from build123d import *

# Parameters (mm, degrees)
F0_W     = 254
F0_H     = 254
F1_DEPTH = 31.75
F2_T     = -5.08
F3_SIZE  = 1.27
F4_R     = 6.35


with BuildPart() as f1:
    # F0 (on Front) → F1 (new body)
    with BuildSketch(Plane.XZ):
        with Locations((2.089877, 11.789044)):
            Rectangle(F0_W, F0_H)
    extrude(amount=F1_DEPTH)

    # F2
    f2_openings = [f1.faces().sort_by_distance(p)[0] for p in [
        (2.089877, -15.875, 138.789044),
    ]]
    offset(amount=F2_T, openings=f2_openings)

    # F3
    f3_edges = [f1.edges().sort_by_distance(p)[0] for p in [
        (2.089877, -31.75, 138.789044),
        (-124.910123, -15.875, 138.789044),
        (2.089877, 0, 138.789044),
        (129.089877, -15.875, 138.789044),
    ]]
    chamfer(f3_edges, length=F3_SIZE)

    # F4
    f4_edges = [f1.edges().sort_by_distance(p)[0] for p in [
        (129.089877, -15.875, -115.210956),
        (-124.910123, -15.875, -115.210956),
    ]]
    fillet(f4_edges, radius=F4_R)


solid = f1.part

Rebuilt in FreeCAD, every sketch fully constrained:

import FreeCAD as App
import Part
import Sketcher
from FreeCAD import Vector
Q = App.Units.Quantity


def edges_at(feature, points):
    """Names of the edges that pass closest to the given points."""
    edges = feature.Shape.Edges
    near = lambda p: min(range(len(edges)), key=lambda i: edges[i].distToShape(Part.Vertex(*p))[0])
    return sorted({f"Edge{near(p) + 1}" for p in points})


def faces_at(feature, points):
    """Names of the faces that lie closest to the given points."""
    faces = feature.Shape.Faces
    near = lambda p: min(range(len(faces)), key=lambda i: faces[i].distToShape(Part.Vertex(*p))[0])
    return sorted({f"Face{near(p) + 1}" for p in points})


def add_polygon(sketch, points):
    """Adds a closed chain of lines whose ends are joined by coincident constraints."""
    first, n = sketch.GeometryCount, len(points)
    for a, b in zip(points, points[1:] + points[:1]):
        sketch.addGeometry(Part.LineSegment(App.Vector(*a, 0), App.Vector(*b, 0)), False)
    for i in range(n):
        sketch.addConstraint(Sketcher.Constraint("Coincident", first + i, 2, first + (i + 1) % n, 1))

doc = App.newDocument("Part")
params = doc.addObject("Spreadsheet::Sheet", "Params")
for row, (alias, value) in enumerate([
    ("sketch1_width", "10 in"),
    ("pad1_length", "1.25 in"),
    ("thickness_wall", "0.2 in"),
    ("chamfer_size", "0.05 in"),
    ("fillet_radius", "0.25 in"),
], start=1):
    params.set(f"A{row}", alias)
    params.set(f"B{row}", "=" + value)
    params.setAlias(f"B{row}", alias)

body = doc.addObject("PartDesign::Body", "Body")

sketch1 = body.newObject("Sketcher::SketchObject", "Sketch")
sketch1.AttachmentSupport = (doc.getObject("XZ_Plane"), [""])
sketch1.MapMode = "FlatFace"
add_polygon(sketch1, [(-125, 139), (-125, -115), (129, -115), (129, 139)])
sketch1.addConstraint([
    Sketcher.Constraint("Vertical", 0),
    Sketcher.Constraint("Horizontal", 1),
    Sketcher.Constraint("Vertical", 2),
    Sketcher.Constraint("Horizontal", 3),
    Sketcher.Constraint("Equal", 3, 0),
    Sketcher.Constraint("DistanceX", 1, 1, 1, 2, Q("10 in")),
    Sketcher.Constraint("DistanceX", 0, 2, -1, 1, Q("124.910123 mm")),
    Sketcher.Constraint("DistanceY", 0, 2, -1, 1, Q("115.210956 mm")),
])
sketch1.setExpression("Constraints[9]", "Params.sketch1_width")
pad1 = body.newObject("PartDesign::Pad", "Pad")
pad1.Profile = sketch1
pad1.setExpression("Length", "Params.pad1_length")
doc.recompute()

thickness = body.newObject("PartDesign::Thickness", "Thickness")
thickness.Base = (pad1, faces_at(pad1, [(2.09, -15.875, 138.789)]))
thickness.setExpression("Value", "Params.thickness_wall")
thickness.Reversed = True
thickness.Join = "Arc"
doc.recompute()

chamfer = body.newObject("PartDesign::Chamfer", "Chamfer")
chamfer.Base = (thickness, edges_at(thickness, [
    (2.09, -31.75, 138.789),
    (-124.91, -15.875, 138.789),
    (2.09, 0, 138.789),
    (129.09, -15.875, 138.789),
]))
chamfer.setExpression("Size", "Params.chamfer_size")
doc.recompute()

fillet = body.newObject("PartDesign::Fillet", "Fillet")
fillet.Base = (chamfer, edges_at(chamfer, [(129.09, -15.875, -115.211), (-124.91, -15.875, -115.211)]))
fillet.setExpression("Radius", "Params.fillet_radius")

doc.recompute()
